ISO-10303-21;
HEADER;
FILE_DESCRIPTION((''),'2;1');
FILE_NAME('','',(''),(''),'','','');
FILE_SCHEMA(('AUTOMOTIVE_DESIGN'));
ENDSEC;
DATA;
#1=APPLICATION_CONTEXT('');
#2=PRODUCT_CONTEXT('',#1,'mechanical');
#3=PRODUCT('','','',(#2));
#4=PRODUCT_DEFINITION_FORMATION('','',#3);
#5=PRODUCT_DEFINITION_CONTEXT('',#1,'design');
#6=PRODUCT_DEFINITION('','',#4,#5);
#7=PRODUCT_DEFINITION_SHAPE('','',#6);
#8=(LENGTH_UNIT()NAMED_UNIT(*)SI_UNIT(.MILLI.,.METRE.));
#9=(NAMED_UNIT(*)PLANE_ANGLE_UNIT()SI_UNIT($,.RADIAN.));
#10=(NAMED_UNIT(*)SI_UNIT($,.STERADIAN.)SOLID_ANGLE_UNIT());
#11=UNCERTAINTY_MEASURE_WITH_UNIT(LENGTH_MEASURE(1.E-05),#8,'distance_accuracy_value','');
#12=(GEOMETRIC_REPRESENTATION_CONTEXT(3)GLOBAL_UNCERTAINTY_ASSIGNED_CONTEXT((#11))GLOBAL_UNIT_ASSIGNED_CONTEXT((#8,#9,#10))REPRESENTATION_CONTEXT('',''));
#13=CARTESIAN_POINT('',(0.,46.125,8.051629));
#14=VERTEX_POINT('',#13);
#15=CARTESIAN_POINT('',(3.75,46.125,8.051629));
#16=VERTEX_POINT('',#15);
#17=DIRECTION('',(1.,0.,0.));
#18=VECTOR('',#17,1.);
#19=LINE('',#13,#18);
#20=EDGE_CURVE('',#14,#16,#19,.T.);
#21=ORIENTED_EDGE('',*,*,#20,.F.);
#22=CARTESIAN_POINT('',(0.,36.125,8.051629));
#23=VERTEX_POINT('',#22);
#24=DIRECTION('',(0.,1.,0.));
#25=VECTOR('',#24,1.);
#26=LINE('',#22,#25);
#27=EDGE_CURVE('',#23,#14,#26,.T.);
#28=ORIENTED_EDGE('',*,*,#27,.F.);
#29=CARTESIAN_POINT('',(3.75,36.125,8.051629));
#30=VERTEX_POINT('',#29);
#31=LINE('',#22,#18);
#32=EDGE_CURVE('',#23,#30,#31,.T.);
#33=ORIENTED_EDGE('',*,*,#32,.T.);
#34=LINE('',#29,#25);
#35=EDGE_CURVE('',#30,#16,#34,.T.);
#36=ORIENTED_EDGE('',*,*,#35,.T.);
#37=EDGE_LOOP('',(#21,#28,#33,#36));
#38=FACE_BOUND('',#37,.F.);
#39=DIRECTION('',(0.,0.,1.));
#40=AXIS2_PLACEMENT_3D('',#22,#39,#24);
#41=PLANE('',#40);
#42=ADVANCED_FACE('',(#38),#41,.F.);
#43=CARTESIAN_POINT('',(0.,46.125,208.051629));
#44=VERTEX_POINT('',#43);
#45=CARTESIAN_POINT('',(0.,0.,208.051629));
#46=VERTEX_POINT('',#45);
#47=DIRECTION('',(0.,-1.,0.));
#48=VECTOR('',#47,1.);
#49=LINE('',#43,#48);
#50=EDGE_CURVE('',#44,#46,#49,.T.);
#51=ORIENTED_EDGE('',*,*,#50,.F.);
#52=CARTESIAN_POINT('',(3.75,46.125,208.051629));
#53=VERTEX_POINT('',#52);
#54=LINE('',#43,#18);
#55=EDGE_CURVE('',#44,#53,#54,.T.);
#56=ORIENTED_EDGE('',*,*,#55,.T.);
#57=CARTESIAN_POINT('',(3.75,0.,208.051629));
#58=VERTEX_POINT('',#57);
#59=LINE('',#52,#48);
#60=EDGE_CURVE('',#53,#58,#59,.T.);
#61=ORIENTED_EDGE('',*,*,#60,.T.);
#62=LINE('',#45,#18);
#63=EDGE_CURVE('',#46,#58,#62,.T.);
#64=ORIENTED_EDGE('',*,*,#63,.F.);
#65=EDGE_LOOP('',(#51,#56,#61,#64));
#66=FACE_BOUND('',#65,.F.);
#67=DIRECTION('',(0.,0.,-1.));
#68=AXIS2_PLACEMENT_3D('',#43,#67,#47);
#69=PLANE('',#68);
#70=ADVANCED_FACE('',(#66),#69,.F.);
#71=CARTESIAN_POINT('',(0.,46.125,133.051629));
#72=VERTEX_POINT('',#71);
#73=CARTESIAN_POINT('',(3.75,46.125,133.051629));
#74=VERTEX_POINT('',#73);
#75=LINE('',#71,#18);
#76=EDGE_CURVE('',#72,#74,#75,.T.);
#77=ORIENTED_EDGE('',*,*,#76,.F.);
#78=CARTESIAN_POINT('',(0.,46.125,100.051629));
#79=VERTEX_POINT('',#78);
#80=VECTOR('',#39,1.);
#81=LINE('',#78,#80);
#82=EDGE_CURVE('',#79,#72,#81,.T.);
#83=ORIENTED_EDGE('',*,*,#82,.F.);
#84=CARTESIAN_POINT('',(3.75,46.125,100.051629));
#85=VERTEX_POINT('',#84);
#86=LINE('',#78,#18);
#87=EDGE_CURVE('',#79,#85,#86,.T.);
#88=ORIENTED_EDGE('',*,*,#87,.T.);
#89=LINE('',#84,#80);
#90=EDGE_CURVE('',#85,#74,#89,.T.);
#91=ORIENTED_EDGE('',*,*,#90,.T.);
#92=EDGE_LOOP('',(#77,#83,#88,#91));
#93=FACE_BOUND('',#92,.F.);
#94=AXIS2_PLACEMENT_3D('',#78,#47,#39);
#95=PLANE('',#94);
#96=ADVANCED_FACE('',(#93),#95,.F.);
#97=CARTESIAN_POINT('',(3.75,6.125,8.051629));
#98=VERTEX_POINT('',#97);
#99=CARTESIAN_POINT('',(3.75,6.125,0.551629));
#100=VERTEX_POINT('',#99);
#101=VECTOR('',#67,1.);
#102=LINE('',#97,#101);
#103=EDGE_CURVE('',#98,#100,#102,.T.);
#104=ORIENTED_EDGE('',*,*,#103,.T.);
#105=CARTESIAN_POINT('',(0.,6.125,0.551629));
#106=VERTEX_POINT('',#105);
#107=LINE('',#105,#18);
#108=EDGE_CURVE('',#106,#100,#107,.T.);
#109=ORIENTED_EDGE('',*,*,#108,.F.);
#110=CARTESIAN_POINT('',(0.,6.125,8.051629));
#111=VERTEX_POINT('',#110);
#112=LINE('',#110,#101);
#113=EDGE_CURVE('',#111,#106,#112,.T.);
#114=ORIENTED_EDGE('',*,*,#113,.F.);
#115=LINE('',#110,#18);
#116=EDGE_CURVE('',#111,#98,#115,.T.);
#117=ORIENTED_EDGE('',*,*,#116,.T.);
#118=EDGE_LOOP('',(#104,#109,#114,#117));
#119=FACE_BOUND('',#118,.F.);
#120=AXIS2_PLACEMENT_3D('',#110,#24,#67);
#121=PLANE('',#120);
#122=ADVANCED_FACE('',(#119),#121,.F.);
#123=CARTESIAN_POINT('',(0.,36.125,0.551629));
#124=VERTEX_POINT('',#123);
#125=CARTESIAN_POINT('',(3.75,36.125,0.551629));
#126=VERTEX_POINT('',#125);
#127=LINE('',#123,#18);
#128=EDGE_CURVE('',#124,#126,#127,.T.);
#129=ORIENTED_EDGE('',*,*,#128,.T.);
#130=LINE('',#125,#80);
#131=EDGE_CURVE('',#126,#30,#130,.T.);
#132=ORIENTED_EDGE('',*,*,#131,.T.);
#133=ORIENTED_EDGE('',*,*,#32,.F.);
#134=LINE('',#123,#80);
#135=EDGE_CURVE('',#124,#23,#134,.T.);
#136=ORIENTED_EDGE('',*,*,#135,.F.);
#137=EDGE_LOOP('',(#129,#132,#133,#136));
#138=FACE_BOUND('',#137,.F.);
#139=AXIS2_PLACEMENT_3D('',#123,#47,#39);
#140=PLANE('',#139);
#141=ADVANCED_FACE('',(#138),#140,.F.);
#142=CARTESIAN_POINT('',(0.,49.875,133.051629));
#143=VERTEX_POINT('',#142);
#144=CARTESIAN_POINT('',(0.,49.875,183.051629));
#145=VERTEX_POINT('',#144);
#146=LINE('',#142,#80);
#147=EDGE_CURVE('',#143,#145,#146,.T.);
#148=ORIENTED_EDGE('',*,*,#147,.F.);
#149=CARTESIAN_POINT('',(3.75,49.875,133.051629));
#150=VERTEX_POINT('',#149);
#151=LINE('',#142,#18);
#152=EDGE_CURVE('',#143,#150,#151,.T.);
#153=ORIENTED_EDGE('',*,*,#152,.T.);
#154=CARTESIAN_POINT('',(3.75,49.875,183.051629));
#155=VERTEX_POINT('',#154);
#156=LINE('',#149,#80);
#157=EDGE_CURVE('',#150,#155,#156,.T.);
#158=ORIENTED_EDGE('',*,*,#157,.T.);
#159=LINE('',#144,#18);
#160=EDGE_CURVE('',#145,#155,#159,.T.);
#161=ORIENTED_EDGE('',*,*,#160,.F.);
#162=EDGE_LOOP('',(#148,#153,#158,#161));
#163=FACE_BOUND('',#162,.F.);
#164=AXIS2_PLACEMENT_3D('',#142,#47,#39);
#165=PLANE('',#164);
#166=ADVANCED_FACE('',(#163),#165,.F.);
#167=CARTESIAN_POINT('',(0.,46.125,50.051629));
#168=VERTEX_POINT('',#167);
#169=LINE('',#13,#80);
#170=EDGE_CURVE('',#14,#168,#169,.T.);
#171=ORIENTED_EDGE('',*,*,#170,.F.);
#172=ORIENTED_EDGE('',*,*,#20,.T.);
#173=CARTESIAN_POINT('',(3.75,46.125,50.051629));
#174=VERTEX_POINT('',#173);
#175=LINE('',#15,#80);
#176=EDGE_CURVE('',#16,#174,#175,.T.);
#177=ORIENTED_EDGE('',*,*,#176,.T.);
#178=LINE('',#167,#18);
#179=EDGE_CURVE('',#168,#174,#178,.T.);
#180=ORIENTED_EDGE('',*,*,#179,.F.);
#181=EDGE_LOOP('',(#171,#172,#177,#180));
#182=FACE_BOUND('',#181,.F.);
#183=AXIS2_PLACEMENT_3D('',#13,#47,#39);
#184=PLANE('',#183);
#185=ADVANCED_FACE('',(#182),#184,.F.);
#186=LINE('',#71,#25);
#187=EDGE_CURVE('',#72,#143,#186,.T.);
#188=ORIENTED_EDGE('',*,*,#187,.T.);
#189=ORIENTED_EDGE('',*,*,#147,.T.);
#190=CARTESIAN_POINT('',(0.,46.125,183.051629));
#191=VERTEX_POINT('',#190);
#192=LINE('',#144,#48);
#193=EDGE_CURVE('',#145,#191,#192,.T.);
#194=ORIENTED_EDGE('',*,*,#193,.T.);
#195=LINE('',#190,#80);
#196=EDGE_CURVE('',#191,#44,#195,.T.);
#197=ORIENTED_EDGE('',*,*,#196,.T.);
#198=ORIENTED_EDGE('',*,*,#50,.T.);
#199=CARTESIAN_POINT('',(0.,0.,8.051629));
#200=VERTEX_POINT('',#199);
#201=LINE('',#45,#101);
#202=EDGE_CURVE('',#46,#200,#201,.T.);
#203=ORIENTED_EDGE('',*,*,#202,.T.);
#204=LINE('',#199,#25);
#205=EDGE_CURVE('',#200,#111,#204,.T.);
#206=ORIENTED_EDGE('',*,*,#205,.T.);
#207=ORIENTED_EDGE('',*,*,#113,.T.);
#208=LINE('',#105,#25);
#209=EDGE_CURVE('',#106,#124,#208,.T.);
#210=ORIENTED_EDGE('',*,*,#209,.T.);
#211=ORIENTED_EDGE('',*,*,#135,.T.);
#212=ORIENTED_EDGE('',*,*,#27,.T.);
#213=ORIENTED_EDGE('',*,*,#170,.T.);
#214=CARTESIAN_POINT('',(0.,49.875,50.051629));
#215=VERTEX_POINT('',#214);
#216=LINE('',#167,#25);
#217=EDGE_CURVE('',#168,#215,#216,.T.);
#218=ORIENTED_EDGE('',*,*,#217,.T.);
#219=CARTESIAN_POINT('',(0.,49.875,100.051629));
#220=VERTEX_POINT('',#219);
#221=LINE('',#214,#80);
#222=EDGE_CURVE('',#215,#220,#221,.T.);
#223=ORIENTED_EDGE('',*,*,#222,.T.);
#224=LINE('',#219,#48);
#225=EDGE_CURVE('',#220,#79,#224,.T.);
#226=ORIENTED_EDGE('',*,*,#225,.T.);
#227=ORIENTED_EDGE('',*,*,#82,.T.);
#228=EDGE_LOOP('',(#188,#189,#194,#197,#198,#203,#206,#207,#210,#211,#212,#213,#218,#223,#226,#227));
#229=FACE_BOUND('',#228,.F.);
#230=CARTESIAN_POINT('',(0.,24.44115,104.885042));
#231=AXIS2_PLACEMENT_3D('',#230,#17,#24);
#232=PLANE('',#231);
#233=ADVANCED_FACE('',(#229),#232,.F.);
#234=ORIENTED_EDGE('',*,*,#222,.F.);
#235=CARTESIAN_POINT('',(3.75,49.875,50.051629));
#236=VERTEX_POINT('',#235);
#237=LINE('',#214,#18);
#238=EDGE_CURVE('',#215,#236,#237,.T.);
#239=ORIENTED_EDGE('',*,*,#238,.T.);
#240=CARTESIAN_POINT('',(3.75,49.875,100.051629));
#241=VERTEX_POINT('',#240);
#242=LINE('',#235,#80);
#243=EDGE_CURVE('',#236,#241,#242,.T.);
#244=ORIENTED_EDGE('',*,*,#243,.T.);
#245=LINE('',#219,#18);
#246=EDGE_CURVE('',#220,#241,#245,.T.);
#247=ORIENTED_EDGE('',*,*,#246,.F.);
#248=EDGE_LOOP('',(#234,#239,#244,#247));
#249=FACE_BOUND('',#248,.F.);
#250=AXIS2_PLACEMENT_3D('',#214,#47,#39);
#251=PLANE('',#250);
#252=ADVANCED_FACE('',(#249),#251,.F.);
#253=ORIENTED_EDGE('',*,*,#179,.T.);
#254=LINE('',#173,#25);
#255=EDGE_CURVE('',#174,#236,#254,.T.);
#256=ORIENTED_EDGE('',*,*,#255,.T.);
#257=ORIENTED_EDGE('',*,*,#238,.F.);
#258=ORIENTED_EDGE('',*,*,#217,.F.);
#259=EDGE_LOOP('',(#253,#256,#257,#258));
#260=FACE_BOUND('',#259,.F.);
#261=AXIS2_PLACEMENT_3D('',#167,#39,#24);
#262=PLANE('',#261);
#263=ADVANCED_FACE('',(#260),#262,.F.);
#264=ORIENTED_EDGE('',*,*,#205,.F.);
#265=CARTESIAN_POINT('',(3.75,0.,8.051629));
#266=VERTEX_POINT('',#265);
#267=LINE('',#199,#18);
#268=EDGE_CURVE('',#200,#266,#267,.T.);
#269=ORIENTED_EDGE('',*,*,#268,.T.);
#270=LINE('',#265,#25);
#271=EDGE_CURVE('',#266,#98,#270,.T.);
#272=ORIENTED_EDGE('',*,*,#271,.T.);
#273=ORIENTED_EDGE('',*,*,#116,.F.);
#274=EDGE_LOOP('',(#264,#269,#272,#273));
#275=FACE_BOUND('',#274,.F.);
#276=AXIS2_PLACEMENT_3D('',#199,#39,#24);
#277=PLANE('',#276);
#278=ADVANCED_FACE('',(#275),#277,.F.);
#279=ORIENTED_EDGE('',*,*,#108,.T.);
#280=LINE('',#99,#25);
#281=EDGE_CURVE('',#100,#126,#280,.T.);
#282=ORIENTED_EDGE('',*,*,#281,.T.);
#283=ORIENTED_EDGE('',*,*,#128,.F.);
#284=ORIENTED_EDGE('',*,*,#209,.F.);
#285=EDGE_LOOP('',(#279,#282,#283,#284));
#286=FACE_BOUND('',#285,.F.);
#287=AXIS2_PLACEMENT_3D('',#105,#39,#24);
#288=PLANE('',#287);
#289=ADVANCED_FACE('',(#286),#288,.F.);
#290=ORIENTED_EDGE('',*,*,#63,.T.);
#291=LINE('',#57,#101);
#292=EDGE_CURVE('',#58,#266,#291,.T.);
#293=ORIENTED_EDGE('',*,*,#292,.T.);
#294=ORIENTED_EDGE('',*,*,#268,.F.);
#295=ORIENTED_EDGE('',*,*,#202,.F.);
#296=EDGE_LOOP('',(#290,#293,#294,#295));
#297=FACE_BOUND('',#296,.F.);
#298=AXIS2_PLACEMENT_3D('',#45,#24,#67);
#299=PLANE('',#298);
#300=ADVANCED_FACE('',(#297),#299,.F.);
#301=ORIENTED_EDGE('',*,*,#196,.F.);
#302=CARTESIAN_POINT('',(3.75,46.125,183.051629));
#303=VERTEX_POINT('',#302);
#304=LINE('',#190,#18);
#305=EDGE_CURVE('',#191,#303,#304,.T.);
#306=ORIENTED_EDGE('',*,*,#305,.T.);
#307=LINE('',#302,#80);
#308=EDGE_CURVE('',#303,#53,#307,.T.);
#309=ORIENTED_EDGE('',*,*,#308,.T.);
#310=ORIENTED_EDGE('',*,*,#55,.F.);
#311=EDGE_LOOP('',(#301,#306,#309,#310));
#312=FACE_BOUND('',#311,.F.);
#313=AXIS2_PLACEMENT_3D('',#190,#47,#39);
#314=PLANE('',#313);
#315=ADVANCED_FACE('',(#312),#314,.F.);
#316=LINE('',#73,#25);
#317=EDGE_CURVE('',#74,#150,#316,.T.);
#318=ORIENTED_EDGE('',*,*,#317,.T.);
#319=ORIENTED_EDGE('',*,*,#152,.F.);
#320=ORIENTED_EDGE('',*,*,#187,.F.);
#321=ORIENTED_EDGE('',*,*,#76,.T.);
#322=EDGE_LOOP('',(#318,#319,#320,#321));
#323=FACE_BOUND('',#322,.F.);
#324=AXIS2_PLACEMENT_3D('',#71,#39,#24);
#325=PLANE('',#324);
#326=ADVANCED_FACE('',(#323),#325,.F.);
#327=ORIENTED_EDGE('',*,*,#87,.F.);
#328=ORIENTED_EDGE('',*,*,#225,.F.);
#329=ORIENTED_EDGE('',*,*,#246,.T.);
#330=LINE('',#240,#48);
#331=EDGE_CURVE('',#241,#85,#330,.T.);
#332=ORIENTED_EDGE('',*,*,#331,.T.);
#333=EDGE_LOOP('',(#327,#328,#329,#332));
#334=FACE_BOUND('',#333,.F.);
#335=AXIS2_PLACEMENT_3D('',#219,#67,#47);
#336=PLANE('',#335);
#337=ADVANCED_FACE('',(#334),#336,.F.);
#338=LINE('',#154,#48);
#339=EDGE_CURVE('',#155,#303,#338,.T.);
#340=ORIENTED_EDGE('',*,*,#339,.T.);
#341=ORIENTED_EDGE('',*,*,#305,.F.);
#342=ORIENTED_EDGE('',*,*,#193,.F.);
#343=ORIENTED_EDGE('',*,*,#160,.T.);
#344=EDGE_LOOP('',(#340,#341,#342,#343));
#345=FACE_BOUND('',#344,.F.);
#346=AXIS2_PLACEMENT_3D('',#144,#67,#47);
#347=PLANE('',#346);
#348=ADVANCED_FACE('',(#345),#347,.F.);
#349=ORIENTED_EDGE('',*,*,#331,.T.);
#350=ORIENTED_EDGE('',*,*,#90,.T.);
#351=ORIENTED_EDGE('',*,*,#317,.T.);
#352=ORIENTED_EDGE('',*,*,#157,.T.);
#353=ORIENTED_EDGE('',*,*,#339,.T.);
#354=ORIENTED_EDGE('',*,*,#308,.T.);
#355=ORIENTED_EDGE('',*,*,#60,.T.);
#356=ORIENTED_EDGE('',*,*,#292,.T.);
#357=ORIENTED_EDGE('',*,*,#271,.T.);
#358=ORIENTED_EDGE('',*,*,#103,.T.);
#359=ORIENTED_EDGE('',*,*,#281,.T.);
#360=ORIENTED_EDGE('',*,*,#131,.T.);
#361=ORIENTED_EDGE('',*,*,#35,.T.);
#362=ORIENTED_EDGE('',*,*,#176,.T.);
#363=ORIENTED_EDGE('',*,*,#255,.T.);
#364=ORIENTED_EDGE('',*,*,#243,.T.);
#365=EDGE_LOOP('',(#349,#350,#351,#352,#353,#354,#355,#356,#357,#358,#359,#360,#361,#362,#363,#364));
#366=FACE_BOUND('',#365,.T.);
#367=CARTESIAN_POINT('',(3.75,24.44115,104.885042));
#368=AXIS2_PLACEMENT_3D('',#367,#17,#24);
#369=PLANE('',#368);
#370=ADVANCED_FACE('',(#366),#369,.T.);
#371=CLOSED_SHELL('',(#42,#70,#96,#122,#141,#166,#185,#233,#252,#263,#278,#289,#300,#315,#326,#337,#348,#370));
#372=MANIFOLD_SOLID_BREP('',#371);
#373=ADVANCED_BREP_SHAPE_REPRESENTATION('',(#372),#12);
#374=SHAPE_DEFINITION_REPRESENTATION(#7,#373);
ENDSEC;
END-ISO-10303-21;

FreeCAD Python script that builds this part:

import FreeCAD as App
import Part
import Sketcher
from FreeCAD import Vector

doc = App.newDocument("Part")
body = doc.addObject("PartDesign::Body", "Body")

# Sketch on YZ plane
sketch1 = body.newObject("Sketcher::SketchObject", "Sketch")
sketch1.AttachmentSupport = (doc.getObject("YZ_Plane"), [""])
sketch1.MapMode = "FlatFace"
sketch1.addGeometry(Part.LineSegment(Vector(0, 208.1, 0), Vector(0, 8.1, 0)), False)
sketch1.addGeometry(Part.LineSegment(Vector(0, 8.1, 0), Vector(6.1, 8.1, 0)), False)
sketch1.addGeometry(Part.LineSegment(Vector(6.1, 8.1, 0), Vector(6.1, 0.6, 0)), False)
sketch1.addGeometry(Part.LineSegment(Vector(6.1, 0.6, 0), Vector(36.1, 0.6, 0)), False)
sketch1.addGeometry(Part.LineSegment(Vector(36.1, 0.6, 0), Vector(36.1, 8.1, 0)), False)
sketch1.addGeometry(Part.LineSegment(Vector(36.1, 8.1, 0), Vector(46.1, 8.1, 0)), False)
sketch1.addGeometry(Part.LineSegment(Vector(46.1, 8.1, 0), Vector(46.1, 50.1, 0)), False)
sketch1.addGeometry(Part.LineSegment(Vector(46.1, 50.1, 0), Vector(49.9, 50.1, 0)), False)
sketch1.addGeometry(Part.LineSegment(Vector(49.9, 50.1, 0), Vector(49.9, 100.1, 0)), False)
sketch1.addGeometry(Part.LineSegment(Vector(49.9, 100.1, 0), Vector(46.1, 100.1, 0)), False)
sketch1.addGeometry(Part.LineSegment(Vector(46.1, 100.1, 0), Vector(46.1, 133.1, 0)), False)
sketch1.addGeometry(Part.LineSegment(Vector(46.1, 133.1, 0), Vector(49.9, 133.1, 0)), False)
sketch1.addGeometry(Part.LineSegment(Vector(49.9, 133.1, 0), Vector(49.9, 183.1, 0)), False)
sketch1.addGeometry(Part.LineSegment(Vector(49.9, 183.1, 0), Vector(46.1, 183.1, 0)), False)
sketch1.addGeometry(Part.LineSegment(Vector(46.1, 183.1, 0), Vector(46.1, 208.1, 0)), False)
sketch1.addGeometry(Part.LineSegment(Vector(46.1, 208.1, 0), Vector(0, 208.1, 0)), False)
sketch1.addConstraint(Sketcher.Constraint("Coincident", 0, 2, 1, 1))
sketch1.addConstraint(Sketcher.Constraint("Coincident", 1, 2, 2, 1))
sketch1.addConstraint(Sketcher.Constraint("Coincident", 2, 2, 3, 1))
sketch1.addConstraint(Sketcher.Constraint("Coincident", 3, 2, 4, 1))
sketch1.addConstraint(Sketcher.Constraint("Coincident", 4, 2, 5, 1))
sketch1.addConstraint(Sketcher.Constraint("Coincident", 5, 2, 6, 1))
sketch1.addConstraint(Sketcher.Constraint("Coincident", 6, 2, 7, 1))
sketch1.addConstraint(Sketcher.Constraint("Coincident", 7, 2, 8, 1))
sketch1.addConstraint(Sketcher.Constraint("Coincident", 8, 2, 9, 1))
sketch1.addConstraint(Sketcher.Constraint("Coincident", 9, 2, 10, 1))
sketch1.addConstraint(Sketcher.Constraint("Coincident", 10, 2, 11, 1))
sketch1.addConstraint(Sketcher.Constraint("Coincident", 11, 2, 12, 1))
sketch1.addConstraint(Sketcher.Constraint("Coincident", 12, 2, 13, 1))
sketch1.addConstraint(Sketcher.Constraint("Coincident", 13, 2, 14, 1))
sketch1.addConstraint(Sketcher.Constraint("Coincident", 14, 2, 15, 1))
sketch1.addConstraint(Sketcher.Constraint("Coincident", 15, 2, 0, 1))
sketch1.addConstraint(Sketcher.Constraint("Vertical", 0))
sketch1.addConstraint(Sketcher.Constraint("Horizontal", 1))
sketch1.addConstraint(Sketcher.Constraint("Vertical", 2))
sketch1.addConstraint(Sketcher.Constraint("Horizontal", 3))
sketch1.addConstraint(Sketcher.Constraint("Vertical", 4))
sketch1.addConstraint(Sketcher.Constraint("Horizontal", 5))
sketch1.addConstraint(Sketcher.Constraint("Vertical", 6))
sketch1.addConstraint(Sketcher.Constraint("Horizontal", 7))
sketch1.addConstraint(Sketcher.Constraint("Vertical", 8))
sketch1.addConstraint(Sketcher.Constraint("Horizontal", 9))
sketch1.addConstraint(Sketcher.Constraint("Vertical", 10))
sketch1.addConstraint(Sketcher.Constraint("Horizontal", 11))
sketch1.addConstraint(Sketcher.Constraint("Vertical", 12))
sketch1.addConstraint(Sketcher.Constraint("Horizontal", 13))
sketch1.addConstraint(Sketcher.Constraint("Vertical", 14))
sketch1.addConstraint(Sketcher.Constraint("Horizontal", 15))
sketch1.addConstraint(Sketcher.Constraint("PointOnObject", 0, 2, -2))
sketch1.addConstraint(Sketcher.Constraint("Horizontal", 1, 2, 4, 2))
sketch1.addConstraint(Sketcher.Constraint("Vertical", 6, 2, 9, 2))
sketch1.addConstraint(Sketcher.Constraint("Vertical", 8, 2, 11, 2))
sketch1.addConstraint(Sketcher.Constraint("Vertical", 10, 2, 13, 2))
sketch1.addConstraint(Sketcher.Constraint("Equal", 8, 12))
sketch1.addConstraint(Sketcher.Constraint("DistanceX", 3, 1, 3, 2, 30.0))
sketch1.addConstraint(Sketcher.Constraint("DistanceX", 5, 1, 5, 2, 10.0))
sketch1.addConstraint(Sketcher.Constraint("DistanceY", 0, 2, 0, 1, 200.0))
sketch1.addConstraint(Sketcher.Constraint("DistanceY", 6, 1, 6, 2, 42.0))
sketch1.addConstraint(Sketcher.Constraint("DistanceY", 8, 1, 8, 2, 50.0))
sketch1.addConstraint(Sketcher.Constraint("DistanceY", 10, 1, 10, 2, 33.0))
sketch1.addConstraint(Sketcher.Constraint("DistanceY", 2, 2, 2, 1, 7.5))
sketch1.addConstraint(Sketcher.Constraint("DistanceX", 7, 1, 7, 2, 3.75))
sketch1.addConstraint(Sketcher.Constraint("DistanceX", 1, 1, 1, 2, 6.125))
sketch1.addConstraint(Sketcher.Constraint("DistanceY", -1, 1, 0, 2, 8.051629))
pad1 = body.newObject("PartDesign::Pad", "Pad")
pad1.Profile = sketch1
pad1.Length = 3.75

doc.recompute()
